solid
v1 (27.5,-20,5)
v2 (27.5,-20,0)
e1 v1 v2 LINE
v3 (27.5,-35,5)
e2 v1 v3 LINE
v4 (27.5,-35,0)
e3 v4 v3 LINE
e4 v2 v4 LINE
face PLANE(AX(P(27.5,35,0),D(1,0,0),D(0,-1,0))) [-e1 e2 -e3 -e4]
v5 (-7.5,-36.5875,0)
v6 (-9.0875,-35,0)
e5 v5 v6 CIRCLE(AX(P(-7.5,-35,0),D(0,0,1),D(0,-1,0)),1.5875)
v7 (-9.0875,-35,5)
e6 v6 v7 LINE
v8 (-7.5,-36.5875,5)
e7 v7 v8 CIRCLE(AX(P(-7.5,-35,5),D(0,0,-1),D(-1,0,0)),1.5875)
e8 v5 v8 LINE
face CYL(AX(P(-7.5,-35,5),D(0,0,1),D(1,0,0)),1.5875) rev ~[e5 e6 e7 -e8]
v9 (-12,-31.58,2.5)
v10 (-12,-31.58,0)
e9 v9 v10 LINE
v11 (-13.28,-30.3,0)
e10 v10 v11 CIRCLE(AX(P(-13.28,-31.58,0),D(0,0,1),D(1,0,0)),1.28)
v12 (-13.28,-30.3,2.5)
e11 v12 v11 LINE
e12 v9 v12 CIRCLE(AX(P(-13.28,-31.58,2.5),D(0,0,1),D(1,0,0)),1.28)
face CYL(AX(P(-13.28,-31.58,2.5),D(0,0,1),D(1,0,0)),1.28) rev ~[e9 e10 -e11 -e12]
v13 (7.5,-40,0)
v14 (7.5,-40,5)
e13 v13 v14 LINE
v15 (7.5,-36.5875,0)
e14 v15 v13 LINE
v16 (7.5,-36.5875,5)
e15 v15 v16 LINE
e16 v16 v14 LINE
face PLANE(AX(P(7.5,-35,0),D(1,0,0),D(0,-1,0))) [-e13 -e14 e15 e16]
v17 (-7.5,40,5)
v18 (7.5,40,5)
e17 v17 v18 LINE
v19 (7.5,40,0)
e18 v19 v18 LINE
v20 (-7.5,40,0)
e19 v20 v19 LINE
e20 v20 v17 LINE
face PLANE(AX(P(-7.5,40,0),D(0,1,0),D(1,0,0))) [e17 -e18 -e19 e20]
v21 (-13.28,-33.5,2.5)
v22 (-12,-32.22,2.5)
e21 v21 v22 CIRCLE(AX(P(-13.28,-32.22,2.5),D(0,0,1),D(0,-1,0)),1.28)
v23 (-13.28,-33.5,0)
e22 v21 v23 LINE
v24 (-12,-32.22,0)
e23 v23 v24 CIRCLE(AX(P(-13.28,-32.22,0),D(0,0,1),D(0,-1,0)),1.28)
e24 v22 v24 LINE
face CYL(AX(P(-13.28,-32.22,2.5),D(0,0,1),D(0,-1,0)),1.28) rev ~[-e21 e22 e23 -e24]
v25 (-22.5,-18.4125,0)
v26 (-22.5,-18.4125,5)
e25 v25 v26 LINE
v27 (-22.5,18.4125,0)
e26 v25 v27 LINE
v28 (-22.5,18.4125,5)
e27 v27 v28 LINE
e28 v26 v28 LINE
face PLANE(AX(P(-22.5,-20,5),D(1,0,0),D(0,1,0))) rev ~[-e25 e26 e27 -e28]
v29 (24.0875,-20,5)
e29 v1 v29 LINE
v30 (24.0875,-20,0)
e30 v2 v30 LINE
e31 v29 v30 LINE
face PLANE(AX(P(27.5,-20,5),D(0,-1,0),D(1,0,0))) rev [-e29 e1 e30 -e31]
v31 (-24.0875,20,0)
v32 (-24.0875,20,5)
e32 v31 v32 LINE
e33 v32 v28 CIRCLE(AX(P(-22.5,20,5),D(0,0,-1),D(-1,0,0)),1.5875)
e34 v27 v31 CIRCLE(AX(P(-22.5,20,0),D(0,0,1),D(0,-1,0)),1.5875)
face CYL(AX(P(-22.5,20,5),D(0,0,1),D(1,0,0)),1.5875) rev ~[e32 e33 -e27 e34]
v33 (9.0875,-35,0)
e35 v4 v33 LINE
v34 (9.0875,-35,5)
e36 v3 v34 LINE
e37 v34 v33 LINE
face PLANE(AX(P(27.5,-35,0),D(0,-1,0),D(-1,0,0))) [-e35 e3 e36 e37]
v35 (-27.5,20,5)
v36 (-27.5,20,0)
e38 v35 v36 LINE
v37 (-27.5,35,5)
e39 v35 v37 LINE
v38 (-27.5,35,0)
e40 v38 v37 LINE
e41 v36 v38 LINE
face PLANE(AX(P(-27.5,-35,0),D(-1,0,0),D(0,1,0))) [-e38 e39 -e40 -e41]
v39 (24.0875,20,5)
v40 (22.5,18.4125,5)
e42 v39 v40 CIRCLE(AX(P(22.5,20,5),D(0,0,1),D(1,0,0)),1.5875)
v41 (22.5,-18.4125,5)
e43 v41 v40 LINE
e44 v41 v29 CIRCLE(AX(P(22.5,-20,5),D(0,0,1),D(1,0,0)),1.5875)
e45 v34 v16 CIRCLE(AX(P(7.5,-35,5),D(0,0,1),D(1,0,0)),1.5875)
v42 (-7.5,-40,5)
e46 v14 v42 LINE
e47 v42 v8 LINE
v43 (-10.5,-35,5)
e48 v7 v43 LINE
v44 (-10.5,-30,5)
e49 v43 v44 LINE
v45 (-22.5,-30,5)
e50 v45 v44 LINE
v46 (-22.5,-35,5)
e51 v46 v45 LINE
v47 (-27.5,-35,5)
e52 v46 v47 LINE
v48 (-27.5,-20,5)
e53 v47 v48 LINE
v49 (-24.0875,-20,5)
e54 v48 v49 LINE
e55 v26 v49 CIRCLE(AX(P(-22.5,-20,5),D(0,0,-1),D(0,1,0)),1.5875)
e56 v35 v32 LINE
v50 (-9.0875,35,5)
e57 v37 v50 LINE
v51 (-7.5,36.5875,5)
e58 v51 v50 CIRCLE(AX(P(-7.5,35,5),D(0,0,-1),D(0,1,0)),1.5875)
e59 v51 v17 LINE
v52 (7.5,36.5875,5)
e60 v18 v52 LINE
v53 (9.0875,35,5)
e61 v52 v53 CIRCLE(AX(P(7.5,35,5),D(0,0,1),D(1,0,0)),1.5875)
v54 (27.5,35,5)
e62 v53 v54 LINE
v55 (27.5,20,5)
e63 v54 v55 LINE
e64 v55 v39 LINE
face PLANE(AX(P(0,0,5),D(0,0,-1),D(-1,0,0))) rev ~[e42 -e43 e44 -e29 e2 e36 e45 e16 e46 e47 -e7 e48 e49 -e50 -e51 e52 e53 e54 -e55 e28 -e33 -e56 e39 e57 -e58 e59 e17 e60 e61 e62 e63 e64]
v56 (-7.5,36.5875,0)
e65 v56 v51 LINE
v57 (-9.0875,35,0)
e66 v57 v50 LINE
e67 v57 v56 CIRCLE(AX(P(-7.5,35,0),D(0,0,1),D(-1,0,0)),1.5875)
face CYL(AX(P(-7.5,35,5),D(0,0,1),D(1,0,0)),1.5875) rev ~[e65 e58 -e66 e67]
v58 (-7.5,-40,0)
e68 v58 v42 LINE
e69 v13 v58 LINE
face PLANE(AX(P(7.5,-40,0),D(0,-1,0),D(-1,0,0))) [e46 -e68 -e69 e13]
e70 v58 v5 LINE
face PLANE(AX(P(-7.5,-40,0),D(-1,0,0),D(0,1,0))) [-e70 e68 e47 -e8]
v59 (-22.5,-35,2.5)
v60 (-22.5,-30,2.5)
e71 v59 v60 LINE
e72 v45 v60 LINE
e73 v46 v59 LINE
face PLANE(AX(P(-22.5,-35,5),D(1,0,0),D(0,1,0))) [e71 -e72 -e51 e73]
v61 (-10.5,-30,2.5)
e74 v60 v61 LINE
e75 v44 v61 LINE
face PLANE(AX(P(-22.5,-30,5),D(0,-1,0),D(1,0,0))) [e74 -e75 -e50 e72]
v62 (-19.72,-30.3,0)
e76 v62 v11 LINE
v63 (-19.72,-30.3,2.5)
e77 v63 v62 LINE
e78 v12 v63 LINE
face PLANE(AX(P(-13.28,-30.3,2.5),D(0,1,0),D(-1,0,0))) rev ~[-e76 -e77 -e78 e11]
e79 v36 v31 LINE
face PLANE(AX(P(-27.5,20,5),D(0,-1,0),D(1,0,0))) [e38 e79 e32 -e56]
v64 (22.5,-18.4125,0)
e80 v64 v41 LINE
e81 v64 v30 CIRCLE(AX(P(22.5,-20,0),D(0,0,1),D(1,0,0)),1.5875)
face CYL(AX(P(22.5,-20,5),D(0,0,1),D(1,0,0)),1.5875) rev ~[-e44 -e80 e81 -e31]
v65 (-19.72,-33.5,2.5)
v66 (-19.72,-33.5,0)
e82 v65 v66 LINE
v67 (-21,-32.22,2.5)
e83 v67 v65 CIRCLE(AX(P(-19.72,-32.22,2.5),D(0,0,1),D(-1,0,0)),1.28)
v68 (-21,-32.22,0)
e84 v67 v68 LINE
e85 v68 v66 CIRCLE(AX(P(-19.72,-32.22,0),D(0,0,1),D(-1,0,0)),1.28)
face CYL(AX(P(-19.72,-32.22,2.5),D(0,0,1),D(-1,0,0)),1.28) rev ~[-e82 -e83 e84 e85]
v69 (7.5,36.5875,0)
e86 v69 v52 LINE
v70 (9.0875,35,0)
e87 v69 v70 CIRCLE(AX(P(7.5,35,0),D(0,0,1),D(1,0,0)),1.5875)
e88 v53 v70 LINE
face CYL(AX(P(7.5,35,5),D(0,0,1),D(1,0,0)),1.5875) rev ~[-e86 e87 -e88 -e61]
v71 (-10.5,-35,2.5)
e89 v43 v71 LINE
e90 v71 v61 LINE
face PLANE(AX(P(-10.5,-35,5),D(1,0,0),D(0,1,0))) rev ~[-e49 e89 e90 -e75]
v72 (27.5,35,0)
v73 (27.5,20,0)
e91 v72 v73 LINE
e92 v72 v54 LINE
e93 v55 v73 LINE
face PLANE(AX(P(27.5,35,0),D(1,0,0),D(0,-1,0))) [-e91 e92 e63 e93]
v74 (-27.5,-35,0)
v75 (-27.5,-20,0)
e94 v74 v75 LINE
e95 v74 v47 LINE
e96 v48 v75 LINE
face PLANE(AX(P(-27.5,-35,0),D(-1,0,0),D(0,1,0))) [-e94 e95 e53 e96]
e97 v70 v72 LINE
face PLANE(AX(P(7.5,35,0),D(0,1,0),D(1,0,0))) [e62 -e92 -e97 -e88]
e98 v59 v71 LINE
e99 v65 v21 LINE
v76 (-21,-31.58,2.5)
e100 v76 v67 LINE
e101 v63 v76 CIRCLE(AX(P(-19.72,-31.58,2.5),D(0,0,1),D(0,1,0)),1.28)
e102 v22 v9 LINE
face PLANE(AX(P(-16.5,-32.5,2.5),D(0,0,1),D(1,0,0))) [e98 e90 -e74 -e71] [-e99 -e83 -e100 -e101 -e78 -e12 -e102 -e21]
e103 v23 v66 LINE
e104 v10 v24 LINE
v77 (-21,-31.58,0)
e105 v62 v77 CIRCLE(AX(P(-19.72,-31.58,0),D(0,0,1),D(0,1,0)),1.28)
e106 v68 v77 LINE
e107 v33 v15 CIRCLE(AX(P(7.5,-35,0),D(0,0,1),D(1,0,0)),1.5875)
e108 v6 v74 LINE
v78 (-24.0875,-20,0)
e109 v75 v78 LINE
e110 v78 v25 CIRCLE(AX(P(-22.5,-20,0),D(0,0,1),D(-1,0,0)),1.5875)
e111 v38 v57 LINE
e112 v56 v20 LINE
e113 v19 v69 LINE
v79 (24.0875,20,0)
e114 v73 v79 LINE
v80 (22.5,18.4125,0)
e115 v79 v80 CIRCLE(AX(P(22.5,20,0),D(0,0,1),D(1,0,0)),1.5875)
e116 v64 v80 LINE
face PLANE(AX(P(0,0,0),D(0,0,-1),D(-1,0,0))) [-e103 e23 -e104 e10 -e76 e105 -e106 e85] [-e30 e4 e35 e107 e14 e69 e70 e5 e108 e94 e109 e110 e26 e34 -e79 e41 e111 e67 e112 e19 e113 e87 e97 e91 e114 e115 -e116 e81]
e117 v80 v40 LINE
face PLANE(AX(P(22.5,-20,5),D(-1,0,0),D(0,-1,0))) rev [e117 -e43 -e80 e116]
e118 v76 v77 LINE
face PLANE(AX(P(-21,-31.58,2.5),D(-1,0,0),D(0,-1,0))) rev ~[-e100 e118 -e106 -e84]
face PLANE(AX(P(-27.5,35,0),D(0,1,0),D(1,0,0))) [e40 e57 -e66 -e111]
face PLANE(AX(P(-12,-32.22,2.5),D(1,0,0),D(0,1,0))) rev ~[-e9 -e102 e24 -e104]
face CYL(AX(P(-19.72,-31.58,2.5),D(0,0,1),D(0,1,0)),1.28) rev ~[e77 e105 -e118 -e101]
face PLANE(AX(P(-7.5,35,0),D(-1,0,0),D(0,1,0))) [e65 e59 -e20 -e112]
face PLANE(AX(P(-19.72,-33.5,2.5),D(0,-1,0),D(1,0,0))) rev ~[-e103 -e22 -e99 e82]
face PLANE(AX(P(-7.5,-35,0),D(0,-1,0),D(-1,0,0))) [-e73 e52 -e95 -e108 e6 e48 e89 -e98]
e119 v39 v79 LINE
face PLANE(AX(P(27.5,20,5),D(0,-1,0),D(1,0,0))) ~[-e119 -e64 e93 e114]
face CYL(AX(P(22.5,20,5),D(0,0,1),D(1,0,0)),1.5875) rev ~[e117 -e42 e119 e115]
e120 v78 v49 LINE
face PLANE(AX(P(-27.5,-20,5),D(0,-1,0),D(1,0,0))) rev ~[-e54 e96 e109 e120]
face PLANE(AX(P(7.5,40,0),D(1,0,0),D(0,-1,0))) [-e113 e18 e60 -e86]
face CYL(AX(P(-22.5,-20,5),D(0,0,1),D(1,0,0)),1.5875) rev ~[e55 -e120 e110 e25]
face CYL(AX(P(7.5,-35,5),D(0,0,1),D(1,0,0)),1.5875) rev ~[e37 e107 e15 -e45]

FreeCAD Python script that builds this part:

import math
import FreeCAD as App
import Part
import Sketcher

V = App.Vector
Q = App.Units.Quantity

doc = App.newDocument("Part")
params = doc.addObject("Spreadsheet::Sheet", "Params")
for row, (alias, value) in enumerate([
    ("sketch1_width", "15 mm"),
    ("sketch1_width2", "20 mm"),
    ("sketch1_height", "5 mm"),
    ("sketch1_height2", "70 mm"),
    ("pad1_length", "5 mm"),
    ("sketch2_width", "5 mm"),
    ("sketch2_height", "40 mm"),
    ("pocket1_length", "5 mm"),
    ("sketch3_width", "12 mm"),
    ("sketch3_height", "5 mm"),
    ("pocket2_length", "2.5 mm"),
    ("sketch4_radius", "1.28 mm"),
    ("sketch4_height", "0.64 mm"),
], start=1):
    params.set(f"A{row}", alias)
    params.set(f"B{row}", "=" + value)
    params.setAlias(f"B{row}", alias)

body = doc.addObject("PartDesign::Body", "Body")

# Sketch on XY plane
sketch1 = body.newObject("Sketcher::SketchObject", "Sketch")
sketch1.AttachmentSupport = (doc.getObject("XY_Plane"), [""])
sketch1.MapMode = "FlatFace"
sketch1.addGeometry([
    Part.LineSegment(V(8, 40, 0), V(-8, 40, 0)),  # 0
    Part.LineSegment(V(-8, 40, 0), V(-8, 35, 0)),  # 1
    Part.LineSegment(V(-8, 35, 0), V(-28, 35, 0)),  # 2
    Part.LineSegment(V(-28, 35, 0), V(-28, -35, 0)),  # 3
    Part.LineSegment(V(-28, -35, 0), V(-8, -35, 0)),  # 4
    Part.LineSegment(V(-8, -35, 0), V(-8, -40, 0)),  # 5
    Part.LineSegment(V(-8, -40, 0), V(8, -40, 0)),  # 6
    Part.LineSegment(V(8, -40, 0), V(8, -35, 0)),  # 7
    Part.LineSegment(V(8, -35, 0), V(28, -35, 0)),  # 8
    Part.LineSegment(V(28, -35, 0), V(28, 35, 0)),  # 9
    Part.LineSegment(V(28, 35, 0), V(8, 35, 0)),  # 10
    Part.LineSegment(V(8, 35, 0), V(8, 40, 0)),  # 11
], False)
sketch1.addConstraint([
    Sketcher.Constraint("Coincident", 0, 2, 1, 1),
    Sketcher.Constraint("Coincident", 1, 2, 2, 1),
    Sketcher.Constraint("Coincident", 2, 2, 3, 1),
    Sketcher.Constraint("Coincident", 3, 2, 4, 1),
    Sketcher.Constraint("Coincident", 4, 2, 5, 1),
    Sketcher.Constraint("Coincident", 5, 2, 6, 1),
    Sketcher.Constraint("Coincident", 6, 2, 7, 1),
    Sketcher.Constraint("Coincident", 7, 2, 8, 1),
    Sketcher.Constraint("Coincident", 8, 2, 9, 1),
    Sketcher.Constraint("Coincident", 9, 2, 10, 1),
    Sketcher.Constraint("Coincident", 10, 2, 11, 1),
    Sketcher.Constraint("Coincident", 11, 2, 0, 1),
    Sketcher.Constraint("Horizontal", 0),
    Sketcher.Constraint("Vertical", 1),
    Sketcher.Constraint("Horizontal", 2),
    Sketcher.Constraint("Vertical", 3),
    Sketcher.Constraint("Horizontal", 4),
    Sketcher.Constraint("Vertical", 5),
    Sketcher.Constraint("Horizontal", 6),
    Sketcher.Constraint("Vertical", 7),
    Sketcher.Constraint("Horizontal", 8),
    Sketcher.Constraint("Vertical", 9),
    Sketcher.Constraint("Horizontal", 10),
    Sketcher.Constraint("Vertical", 11),
    Sketcher.Constraint("Symmetric", 0, 2, 6, 2, -1, 1),
    Sketcher.Constraint("Symmetric", 2, 2, 8, 2, -1, 1),
    Sketcher.Constraint("Symmetric", 4, 2, 10, 2, -1, 1),
    Sketcher.Constraint("Symmetric", 4, 2, 7, 2, -2),
    Sketcher.Constraint("DistanceX", 0, 2, 0, 1, Q("15 mm")),
    Sketcher.Constraint("DistanceX", 2, 2, 2, 1, Q("20 mm")),
    Sketcher.Constraint("DistanceY", 1, 2, 1, 1, Q("5 mm")),
    Sketcher.Constraint("DistanceY", 3, 2, 3, 1, Q("70 mm")),
])
sketch1.setExpression("Constraints[28]", "Params.sketch1_width")
sketch1.setExpression("Constraints[29]", "Params.sketch1_width2")
sketch1.setExpression("Constraints[30]", "Params.sketch1_height")
sketch1.setExpression("Constraints[31]", "Params.sketch1_height2")
pad1 = body.newObject("PartDesign::Pad", "Pad")
pad1.Profile = sketch1
pad1.setExpression("Length", "Params.pad1_length")

# Sketch on XY plane
sketch2 = body.newObject("Sketcher::SketchObject", "Sketch001")
sketch2.AttachmentSupport = (doc.getObject("XY_Plane"), [""])
sketch2.MapMode = "FlatFace"
sketch2.AttachmentOffset = App.Placement(V(0, 0, 5), App.Rotation())
sketch2.addGeometry([
    Part.LineSegment(V(-28, 20, 0), V(-28, -20, 0)),
    Part.LineSegment(V(-28, -20, 0), V(-22, -20, 0)),
    Part.LineSegment(V(-22, -20, 0), V(-22, 20, 0)),
    Part.LineSegment(V(-22, 20, 0), V(-28, 20, 0)),
], False)
sketch2.addConstraint([
    Sketcher.Constraint("Coincident", 0, 2, 1, 1),
    Sketcher.Constraint("Coincident", 1, 2, 2, 1),
    Sketcher.Constraint("Coincident", 2, 2, 3, 1),
    Sketcher.Constraint("Coincident", 3, 2, 0, 1),
    Sketcher.Constraint("Vertical", 0),
    Sketcher.Constraint("Horizontal", 1),
    Sketcher.Constraint("Vertical", 2),
    Sketcher.Constraint("Horizontal", 3),
    Sketcher.Constraint("DistanceX", 1, 1, 1, 2, Q("5 mm")),
    Sketcher.Constraint("DistanceY", 0, 2, 0, 1, Q("40 mm")),
    Sketcher.Constraint("DistanceY", 0, 2, -1, 1, Q("20 mm")),
    Sketcher.Constraint("DistanceX", 0, 2, -1, 1, Q("27.5 mm")),
])
sketch2.setExpression("Constraints[8]", "Params.sketch2_width")
sketch2.setExpression("Constraints[9]", "Params.sketch2_height")
pocket1 = body.newObject("PartDesign::Pocket", "Pocket")
pocket1.Profile = sketch2
pocket1.setExpression("Length", "Params.pocket1_length")
doc.recompute()

mirrored = body.newObject("PartDesign::Mirrored", "Mirrored")
mirrored.Originals = [pocket1]
mirrored.MirrorPlane = (doc.getObject("YZ_Plane"), [""])
body.Tip = mirrored

# Sketch on XY plane
sketch3 = body.newObject("Sketcher::SketchObject", "Sketch002")
sketch3.AttachmentSupport = (doc.getObject("XY_Plane"), [""])
sketch3.MapMode = "FlatFace"
sketch3.AttachmentOffset = App.Placement(V(0, 0, 5), App.Rotation())
sketch3.addGeometry([
    Part.LineSegment(V(-22, -30, 0), V(-22, -35, 0)),
    Part.LineSegment(V(-22, -35, 0), V(-10, -35, 0)),
    Part.LineSegment(V(-10, -35, 0), V(-10, -30, 0)),
    Part.LineSegment(V(-10, -30, 0), V(-22, -30, 0)),
], False)
sketch3.addConstraint([
    Sketcher.Constraint("Coincident", 0, 2, 1, 1),
    Sketcher.Constraint("Coincident", 1, 2, 2, 1),
    Sketcher.Constraint("Coincident", 2, 2, 3, 1),
    Sketcher.Constraint("Coincident", 3, 2, 0, 1),
    Sketcher.Constraint("Vertical", 0),
    Sketcher.Constraint("Horizontal", 1),
    Sketcher.Constraint("Vertical", 2),
    Sketcher.Constraint("Horizontal", 3),
    Sketcher.Constraint("DistanceX", 1, 1, 1, 2, Q("12 mm")),
    Sketcher.Constraint("DistanceY", 0, 2, 0, 1, Q("5 mm")),
    Sketcher.Constraint("DistanceY", 0, 2, -1, 1, Q("35 mm")),
    Sketcher.Constraint("DistanceX", 0, 2, -1, 1, Q("22.5 mm")),
])
sketch3.setExpression("Constraints[8]", "Params.sketch3_width")
sketch3.setExpression("Constraints[9]", "Params.sketch3_height")
pocket2 = body.newObject("PartDesign::Pocket", "Pocket001")
pocket2.Profile = sketch3
pocket2.setExpression("Length", "Params.pocket2_length")

# Sketch on XY plane
sketch4 = body.newObject("Sketcher::SketchObject", "Sketch003")
sketch4.AttachmentSupport = (doc.getObject("XY_Plane"), [""])
sketch4.MapMode = "FlatFace"
sketch4.AttachmentOffset = App.Placement(V(0, 0, 2.5), App.Rotation())
sketch4.addGeometry([
    Part.LineSegment(V(-19.7, -33.5, 0), V(-13.3, -33.5, 0)),  # 0
    Part.ArcOfCircle(Part.Circle(V(-13.3, -32.2, 0), V(0, 0, 1), 1.3), math.radians(-90), math.radians(0)),  # 1
    Part.LineSegment(V(-12, -32.2, 0), V(-12, -31.6, 0)),  # 2
    Part.ArcOfCircle(Part.Circle(V(-13.3, -31.6, 0), V(0, 0, 1), 1.3), math.radians(0), math.radians(90)),  # 3
    Part.LineSegment(V(-13.3, -30.3, 0), V(-19.7, -30.3, 0)),  # 4
    Part.ArcOfCircle(Part.Circle(V(-19.7, -31.6, 0), V(0, 0, 1), 1.3), math.radians(90), math.radians(180)),  # 5
    Part.LineSegment(V(-21, -31.6, 0), V(-21, -32.2, 0)),  # 6
    Part.ArcOfCircle(Part.Circle(V(-19.7, -32.2, 0), V(0, 0, 1), 1.3), math.radians(180), math.radians(270)),  # 7
], False)
sketch4.addConstraint([
    Sketcher.Constraint("Tangent", 0, 2, 1, 1),
    Sketcher.Constraint("Tangent", 1, 2, 2, 1),
    Sketcher.Constraint("Tangent", 2, 2, 3, 1),
    Sketcher.Constraint("Tangent", 3, 2, 4, 1),
    Sketcher.Constraint("Tangent", 4, 2, 5, 1),
    Sketcher.Constraint("Tangent", 5, 2, 6, 1),
    Sketcher.Constraint("Tangent", 6, 2, 7, 1),
    Sketcher.Constraint("Tangent", 7, 2, 0, 1),
    Sketcher.Constraint("Horizontal", 0),
    Sketcher.Constraint("Vertical", 2),
    Sketcher.Constraint("Horizontal", 4),
    Sketcher.Constraint("Vertical", 6),
    Sketcher.Constraint("Equal", 1, 3),
    Sketcher.Constraint("Equal", 3, 5),
    Sketcher.Constraint("Equal", 5, 7),
    Sketcher.Constraint("Radius", 1, Q("1.28 mm")),
    Sketcher.Constraint("DistanceX", 1, 2, -1, 1, Q("12 mm")),
    Sketcher.Constraint("DistanceX", 5, 2, -1, 1, Q("21 mm")),
    Sketcher.Constraint("DistanceY", 2, 1, 2, 2, Q("0.64 mm")),
    Sketcher.Constraint("DistanceY", 0, 2, -1, 1, Q("33.5 mm")),
])
sketch4.setExpression("Constraints[15]", "Params.sketch4_radius")
sketch4.setExpression("Constraints[18]", "Params.sketch4_height")
pocket3 = body.newObject("PartDesign::Pocket", "Pocket002")
pocket3.Profile = sketch4
pocket3.Type = "ThroughAll"

# Sketch on XY plane
sketch5 = body.newObject("Sketcher::SketchObject", "Sketch004")
sketch5.AttachmentSupport = (doc.getObject("XY_Plane"), [""])
sketch5.MapMode = "FlatFace"
sketch5.AttachmentOffset = App.Placement(V(0, 0, 5), App.Rotation())
sketch5.addGeometry([
    Part.Circle(V(-7.5, 35, 0), V(0, 0, 1), 1.6),  # 0
    Part.Circle(V(7.5, 35, 0), V(0, 0, 1), 1.6),  # 1
    Part.Circle(V(22.5, 20, 0), V(0, 0, 1), 1.6),  # 2
    Part.Circle(V(-22.5, 20, 0), V(0, 0, 1), 1.6),  # 3
    Part.Circle(V(-22.5, -20, 0), V(0, 0, 1), 1.6),  # 4
    Part.Circle(V(-7.5, -35, 0), V(0, 0, 1), 1.6),  # 5
    Part.Circle(V(7.5, -35, 0), V(0, 0, 1), 1.6),  # 6
    Part.Circle(V(22.5, -20, 0), V(0, 0, 1), 1.6),  # 7
], False)
sketch5.addConstraint([
    Sketcher.Constraint("Equal", 0, 1),
    Sketcher.Constraint("Equal", 1, 2),
    Sketcher.Constraint("Equal", 2, 3),
    Sketcher.Constraint("Equal", 3, 4),
    Sketcher.Constraint("Equal", 4, 5),
    Sketcher.Constraint("Equal", 5, 6),
    Sketcher.Constraint("Equal", 6, 7),
    Sketcher.Constraint("Symmetric", 2, 3, 4, 3, -1, 1),
    Sketcher.Constraint("Symmetric", 1, 3, 5, 3, -1, 1),
    Sketcher.Constraint("Symmetric", 0, 3, 6, 3, -1, 1),
    Sketcher.Constraint("Symmetric", 3, 3, 7, 3, -1, 1),
    Sketcher.Constraint("Symmetric", 0, 3, 1, 3, -2),
    Sketcher.Constraint("Symmetric", 2, 3, 3, 3, -2),
    Sketcher.Constraint("Diameter", 0, Q("3.175 mm")),
    Sketcher.Constraint("DistanceY", -1, 1, 0, 3, Q("35 mm")),
    Sketcher.Constraint("DistanceY", -1, 1, 2, 3, Q("20 mm")),
    Sketcher.Constraint("DistanceX", 0, 3, 1, 3, Q("15 mm")),
    Sketcher.Constraint("DistanceX", 1, 3, 2, 3, Q("15 mm")),
])
pocket4 = body.newObject("PartDesign::Pocket", "Pocket003")
pocket4.Profile = sketch5
pocket4.Type = "ThroughAll"

doc.recompute()
